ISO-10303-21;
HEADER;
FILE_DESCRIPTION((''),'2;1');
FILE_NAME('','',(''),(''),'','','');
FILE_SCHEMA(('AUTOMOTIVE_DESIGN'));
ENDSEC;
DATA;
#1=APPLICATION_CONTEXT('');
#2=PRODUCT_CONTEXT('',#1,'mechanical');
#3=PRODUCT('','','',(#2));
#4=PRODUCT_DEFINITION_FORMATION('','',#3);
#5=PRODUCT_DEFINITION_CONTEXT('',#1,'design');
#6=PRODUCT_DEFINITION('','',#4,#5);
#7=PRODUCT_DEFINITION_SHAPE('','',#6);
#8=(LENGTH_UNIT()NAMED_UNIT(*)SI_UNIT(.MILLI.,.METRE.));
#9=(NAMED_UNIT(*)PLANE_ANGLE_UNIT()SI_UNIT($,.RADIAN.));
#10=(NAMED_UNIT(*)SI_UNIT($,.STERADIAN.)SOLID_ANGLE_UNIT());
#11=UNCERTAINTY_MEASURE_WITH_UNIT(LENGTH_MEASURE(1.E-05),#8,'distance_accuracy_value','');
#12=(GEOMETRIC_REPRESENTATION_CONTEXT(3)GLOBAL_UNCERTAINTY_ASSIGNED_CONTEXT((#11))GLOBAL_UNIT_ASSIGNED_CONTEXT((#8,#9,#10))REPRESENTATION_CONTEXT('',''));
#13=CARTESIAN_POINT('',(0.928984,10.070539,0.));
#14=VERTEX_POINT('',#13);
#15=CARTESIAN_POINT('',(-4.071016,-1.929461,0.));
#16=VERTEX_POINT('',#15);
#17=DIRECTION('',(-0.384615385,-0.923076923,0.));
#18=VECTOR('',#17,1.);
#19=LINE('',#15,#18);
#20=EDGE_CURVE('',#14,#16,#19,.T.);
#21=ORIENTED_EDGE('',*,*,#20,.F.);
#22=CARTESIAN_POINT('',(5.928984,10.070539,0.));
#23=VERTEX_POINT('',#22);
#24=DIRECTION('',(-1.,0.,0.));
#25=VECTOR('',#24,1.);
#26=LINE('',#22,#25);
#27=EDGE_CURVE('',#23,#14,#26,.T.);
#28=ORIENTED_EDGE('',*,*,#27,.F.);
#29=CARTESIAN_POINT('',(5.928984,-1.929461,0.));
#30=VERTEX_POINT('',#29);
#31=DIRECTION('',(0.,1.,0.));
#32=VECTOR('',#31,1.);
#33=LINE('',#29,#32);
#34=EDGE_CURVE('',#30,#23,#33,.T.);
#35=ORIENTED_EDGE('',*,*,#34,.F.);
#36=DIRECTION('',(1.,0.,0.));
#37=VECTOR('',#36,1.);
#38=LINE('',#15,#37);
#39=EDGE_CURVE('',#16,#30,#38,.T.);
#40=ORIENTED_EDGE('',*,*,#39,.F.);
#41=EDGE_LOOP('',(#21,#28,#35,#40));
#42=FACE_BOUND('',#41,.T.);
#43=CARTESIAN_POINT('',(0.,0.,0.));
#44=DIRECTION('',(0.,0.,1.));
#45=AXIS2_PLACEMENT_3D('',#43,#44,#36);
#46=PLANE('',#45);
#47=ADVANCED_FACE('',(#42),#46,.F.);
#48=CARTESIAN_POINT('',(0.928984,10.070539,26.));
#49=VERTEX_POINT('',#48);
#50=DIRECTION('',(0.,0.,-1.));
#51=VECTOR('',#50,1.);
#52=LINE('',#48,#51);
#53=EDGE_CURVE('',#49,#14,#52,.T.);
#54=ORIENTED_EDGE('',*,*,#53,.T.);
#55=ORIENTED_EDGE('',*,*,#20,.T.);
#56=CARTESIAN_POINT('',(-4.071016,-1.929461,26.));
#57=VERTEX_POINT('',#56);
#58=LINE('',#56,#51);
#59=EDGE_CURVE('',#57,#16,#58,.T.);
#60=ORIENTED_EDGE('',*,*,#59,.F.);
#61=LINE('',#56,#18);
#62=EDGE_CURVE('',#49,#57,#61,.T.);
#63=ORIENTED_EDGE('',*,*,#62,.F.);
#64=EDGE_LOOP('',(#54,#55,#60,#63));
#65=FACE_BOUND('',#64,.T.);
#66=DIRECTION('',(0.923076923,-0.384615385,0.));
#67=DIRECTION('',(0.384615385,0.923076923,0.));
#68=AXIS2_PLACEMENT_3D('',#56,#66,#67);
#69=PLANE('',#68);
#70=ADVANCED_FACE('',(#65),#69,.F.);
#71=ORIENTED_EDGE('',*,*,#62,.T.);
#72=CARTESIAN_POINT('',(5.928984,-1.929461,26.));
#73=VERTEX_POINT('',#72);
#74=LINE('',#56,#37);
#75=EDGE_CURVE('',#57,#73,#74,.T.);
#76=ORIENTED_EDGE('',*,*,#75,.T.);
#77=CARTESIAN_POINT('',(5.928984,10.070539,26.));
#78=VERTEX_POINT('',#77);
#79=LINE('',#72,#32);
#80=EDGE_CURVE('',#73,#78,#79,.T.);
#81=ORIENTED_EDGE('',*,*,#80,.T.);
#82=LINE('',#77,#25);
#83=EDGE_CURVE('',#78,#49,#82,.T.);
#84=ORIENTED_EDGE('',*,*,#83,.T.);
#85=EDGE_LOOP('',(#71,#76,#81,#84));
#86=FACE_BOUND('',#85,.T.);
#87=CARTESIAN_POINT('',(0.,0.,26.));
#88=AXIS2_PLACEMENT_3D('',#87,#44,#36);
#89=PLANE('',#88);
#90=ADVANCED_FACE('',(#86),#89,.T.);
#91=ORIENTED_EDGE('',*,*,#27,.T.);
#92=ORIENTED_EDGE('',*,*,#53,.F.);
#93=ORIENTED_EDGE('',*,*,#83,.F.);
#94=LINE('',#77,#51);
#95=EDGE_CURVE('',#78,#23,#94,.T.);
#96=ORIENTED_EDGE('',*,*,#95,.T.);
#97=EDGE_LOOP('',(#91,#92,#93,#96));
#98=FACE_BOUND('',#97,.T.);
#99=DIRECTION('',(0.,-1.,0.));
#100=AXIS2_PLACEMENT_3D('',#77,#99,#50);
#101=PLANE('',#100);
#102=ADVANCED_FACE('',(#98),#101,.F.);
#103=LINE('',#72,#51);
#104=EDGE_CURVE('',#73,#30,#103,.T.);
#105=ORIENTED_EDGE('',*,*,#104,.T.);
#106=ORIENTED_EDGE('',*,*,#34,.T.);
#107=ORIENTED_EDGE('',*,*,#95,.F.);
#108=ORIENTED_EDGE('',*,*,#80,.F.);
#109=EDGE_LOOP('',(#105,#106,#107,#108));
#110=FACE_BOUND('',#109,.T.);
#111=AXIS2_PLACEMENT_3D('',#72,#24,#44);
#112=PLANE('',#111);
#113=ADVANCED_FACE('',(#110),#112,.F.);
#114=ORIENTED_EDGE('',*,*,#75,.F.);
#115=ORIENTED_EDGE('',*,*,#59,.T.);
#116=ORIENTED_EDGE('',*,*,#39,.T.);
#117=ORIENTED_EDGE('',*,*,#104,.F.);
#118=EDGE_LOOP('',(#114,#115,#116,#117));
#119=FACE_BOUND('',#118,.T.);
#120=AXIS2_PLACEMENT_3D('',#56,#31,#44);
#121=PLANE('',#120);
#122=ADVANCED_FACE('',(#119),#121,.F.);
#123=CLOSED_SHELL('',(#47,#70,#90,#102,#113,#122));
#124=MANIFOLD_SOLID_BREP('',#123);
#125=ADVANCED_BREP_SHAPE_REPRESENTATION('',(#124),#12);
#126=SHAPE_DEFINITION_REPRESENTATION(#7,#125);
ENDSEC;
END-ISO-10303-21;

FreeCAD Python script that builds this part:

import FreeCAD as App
import Part
import Sketcher
Q = App.Units.Quantity

doc = App.newDocument("Part")
params = doc.addObject("Spreadsheet::Sheet", "Params")
for row, (alias, value) in enumerate([
    ("sketch1_width", "10 mm"),
    ("sketch1_width2", "5 mm"),
    ("sketch1_height", "12 mm"),
    ("pad1_length", "26 mm"),
], start=1):
    params.set(f"A{row}", alias)
    params.set(f"B{row}", "=" + value)
    params.setAlias(f"B{row}", alias)

body = doc.addObject("PartDesign::Body", "Body")

# Sketch on XY plane
sketch1 = body.newObject("Sketcher::SketchObject", "Sketch")
sketch1.AttachmentSupport = (doc.getObject("XY_Plane"), [""])
sketch1.MapMode = "FlatFace"
sketch1.addGeometry([
    Part.LineSegment(App.Vector(-4, -2, 0), App.Vector(6, -2, 0)),
    Part.LineSegment(App.Vector(6, -2, 0), App.Vector(6, 10, 0)),
    Part.LineSegment(App.Vector(6, 10, 0), App.Vector(1, 10, 0)),
    Part.LineSegment(App.Vector(1, 10, 0), App.Vector(-4, -2, 0)),
], False)
sketch1.addConstraint([
    Sketcher.Constraint("Coincident", 0, 2, 1, 1),
    Sketcher.Constraint("Coincident", 1, 2, 2, 1),
    Sketcher.Constraint("Coincident", 2, 2, 3, 1),
    Sketcher.Constraint("Coincident", 3, 2, 0, 1),
    Sketcher.Constraint("Horizontal", 0),
    Sketcher.Constraint("Vertical", 1),
    Sketcher.Constraint("Horizontal", 2),
    Sketcher.Constraint("DistanceX", 0, 1, 0, 2, Q("10 mm")),
    Sketcher.Constraint("DistanceX", 2, 2, 2, 1, Q("5 mm")),
    Sketcher.Constraint("DistanceY", 1, 1, 1, 2, Q("12 mm")),
    Sketcher.Constraint("DistanceY", 0, 2, -1, 1, Q("1.929461 mm")),
    Sketcher.Constraint("DistanceX", -1, 1, 0, 2, Q("5.928984 mm")),
])
sketch1.setExpression("Constraints[7]", "Params.sketch1_width")
sketch1.setExpression("Constraints[8]", "Params.sketch1_width2")
sketch1.setExpression("Constraints[9]", "Params.sketch1_height")
pad1 = body.newObject("PartDesign::Pad", "Pad")
pad1.Profile = sketch1
pad1.setExpression("Length", "Params.pad1_length")

doc.recompute()
